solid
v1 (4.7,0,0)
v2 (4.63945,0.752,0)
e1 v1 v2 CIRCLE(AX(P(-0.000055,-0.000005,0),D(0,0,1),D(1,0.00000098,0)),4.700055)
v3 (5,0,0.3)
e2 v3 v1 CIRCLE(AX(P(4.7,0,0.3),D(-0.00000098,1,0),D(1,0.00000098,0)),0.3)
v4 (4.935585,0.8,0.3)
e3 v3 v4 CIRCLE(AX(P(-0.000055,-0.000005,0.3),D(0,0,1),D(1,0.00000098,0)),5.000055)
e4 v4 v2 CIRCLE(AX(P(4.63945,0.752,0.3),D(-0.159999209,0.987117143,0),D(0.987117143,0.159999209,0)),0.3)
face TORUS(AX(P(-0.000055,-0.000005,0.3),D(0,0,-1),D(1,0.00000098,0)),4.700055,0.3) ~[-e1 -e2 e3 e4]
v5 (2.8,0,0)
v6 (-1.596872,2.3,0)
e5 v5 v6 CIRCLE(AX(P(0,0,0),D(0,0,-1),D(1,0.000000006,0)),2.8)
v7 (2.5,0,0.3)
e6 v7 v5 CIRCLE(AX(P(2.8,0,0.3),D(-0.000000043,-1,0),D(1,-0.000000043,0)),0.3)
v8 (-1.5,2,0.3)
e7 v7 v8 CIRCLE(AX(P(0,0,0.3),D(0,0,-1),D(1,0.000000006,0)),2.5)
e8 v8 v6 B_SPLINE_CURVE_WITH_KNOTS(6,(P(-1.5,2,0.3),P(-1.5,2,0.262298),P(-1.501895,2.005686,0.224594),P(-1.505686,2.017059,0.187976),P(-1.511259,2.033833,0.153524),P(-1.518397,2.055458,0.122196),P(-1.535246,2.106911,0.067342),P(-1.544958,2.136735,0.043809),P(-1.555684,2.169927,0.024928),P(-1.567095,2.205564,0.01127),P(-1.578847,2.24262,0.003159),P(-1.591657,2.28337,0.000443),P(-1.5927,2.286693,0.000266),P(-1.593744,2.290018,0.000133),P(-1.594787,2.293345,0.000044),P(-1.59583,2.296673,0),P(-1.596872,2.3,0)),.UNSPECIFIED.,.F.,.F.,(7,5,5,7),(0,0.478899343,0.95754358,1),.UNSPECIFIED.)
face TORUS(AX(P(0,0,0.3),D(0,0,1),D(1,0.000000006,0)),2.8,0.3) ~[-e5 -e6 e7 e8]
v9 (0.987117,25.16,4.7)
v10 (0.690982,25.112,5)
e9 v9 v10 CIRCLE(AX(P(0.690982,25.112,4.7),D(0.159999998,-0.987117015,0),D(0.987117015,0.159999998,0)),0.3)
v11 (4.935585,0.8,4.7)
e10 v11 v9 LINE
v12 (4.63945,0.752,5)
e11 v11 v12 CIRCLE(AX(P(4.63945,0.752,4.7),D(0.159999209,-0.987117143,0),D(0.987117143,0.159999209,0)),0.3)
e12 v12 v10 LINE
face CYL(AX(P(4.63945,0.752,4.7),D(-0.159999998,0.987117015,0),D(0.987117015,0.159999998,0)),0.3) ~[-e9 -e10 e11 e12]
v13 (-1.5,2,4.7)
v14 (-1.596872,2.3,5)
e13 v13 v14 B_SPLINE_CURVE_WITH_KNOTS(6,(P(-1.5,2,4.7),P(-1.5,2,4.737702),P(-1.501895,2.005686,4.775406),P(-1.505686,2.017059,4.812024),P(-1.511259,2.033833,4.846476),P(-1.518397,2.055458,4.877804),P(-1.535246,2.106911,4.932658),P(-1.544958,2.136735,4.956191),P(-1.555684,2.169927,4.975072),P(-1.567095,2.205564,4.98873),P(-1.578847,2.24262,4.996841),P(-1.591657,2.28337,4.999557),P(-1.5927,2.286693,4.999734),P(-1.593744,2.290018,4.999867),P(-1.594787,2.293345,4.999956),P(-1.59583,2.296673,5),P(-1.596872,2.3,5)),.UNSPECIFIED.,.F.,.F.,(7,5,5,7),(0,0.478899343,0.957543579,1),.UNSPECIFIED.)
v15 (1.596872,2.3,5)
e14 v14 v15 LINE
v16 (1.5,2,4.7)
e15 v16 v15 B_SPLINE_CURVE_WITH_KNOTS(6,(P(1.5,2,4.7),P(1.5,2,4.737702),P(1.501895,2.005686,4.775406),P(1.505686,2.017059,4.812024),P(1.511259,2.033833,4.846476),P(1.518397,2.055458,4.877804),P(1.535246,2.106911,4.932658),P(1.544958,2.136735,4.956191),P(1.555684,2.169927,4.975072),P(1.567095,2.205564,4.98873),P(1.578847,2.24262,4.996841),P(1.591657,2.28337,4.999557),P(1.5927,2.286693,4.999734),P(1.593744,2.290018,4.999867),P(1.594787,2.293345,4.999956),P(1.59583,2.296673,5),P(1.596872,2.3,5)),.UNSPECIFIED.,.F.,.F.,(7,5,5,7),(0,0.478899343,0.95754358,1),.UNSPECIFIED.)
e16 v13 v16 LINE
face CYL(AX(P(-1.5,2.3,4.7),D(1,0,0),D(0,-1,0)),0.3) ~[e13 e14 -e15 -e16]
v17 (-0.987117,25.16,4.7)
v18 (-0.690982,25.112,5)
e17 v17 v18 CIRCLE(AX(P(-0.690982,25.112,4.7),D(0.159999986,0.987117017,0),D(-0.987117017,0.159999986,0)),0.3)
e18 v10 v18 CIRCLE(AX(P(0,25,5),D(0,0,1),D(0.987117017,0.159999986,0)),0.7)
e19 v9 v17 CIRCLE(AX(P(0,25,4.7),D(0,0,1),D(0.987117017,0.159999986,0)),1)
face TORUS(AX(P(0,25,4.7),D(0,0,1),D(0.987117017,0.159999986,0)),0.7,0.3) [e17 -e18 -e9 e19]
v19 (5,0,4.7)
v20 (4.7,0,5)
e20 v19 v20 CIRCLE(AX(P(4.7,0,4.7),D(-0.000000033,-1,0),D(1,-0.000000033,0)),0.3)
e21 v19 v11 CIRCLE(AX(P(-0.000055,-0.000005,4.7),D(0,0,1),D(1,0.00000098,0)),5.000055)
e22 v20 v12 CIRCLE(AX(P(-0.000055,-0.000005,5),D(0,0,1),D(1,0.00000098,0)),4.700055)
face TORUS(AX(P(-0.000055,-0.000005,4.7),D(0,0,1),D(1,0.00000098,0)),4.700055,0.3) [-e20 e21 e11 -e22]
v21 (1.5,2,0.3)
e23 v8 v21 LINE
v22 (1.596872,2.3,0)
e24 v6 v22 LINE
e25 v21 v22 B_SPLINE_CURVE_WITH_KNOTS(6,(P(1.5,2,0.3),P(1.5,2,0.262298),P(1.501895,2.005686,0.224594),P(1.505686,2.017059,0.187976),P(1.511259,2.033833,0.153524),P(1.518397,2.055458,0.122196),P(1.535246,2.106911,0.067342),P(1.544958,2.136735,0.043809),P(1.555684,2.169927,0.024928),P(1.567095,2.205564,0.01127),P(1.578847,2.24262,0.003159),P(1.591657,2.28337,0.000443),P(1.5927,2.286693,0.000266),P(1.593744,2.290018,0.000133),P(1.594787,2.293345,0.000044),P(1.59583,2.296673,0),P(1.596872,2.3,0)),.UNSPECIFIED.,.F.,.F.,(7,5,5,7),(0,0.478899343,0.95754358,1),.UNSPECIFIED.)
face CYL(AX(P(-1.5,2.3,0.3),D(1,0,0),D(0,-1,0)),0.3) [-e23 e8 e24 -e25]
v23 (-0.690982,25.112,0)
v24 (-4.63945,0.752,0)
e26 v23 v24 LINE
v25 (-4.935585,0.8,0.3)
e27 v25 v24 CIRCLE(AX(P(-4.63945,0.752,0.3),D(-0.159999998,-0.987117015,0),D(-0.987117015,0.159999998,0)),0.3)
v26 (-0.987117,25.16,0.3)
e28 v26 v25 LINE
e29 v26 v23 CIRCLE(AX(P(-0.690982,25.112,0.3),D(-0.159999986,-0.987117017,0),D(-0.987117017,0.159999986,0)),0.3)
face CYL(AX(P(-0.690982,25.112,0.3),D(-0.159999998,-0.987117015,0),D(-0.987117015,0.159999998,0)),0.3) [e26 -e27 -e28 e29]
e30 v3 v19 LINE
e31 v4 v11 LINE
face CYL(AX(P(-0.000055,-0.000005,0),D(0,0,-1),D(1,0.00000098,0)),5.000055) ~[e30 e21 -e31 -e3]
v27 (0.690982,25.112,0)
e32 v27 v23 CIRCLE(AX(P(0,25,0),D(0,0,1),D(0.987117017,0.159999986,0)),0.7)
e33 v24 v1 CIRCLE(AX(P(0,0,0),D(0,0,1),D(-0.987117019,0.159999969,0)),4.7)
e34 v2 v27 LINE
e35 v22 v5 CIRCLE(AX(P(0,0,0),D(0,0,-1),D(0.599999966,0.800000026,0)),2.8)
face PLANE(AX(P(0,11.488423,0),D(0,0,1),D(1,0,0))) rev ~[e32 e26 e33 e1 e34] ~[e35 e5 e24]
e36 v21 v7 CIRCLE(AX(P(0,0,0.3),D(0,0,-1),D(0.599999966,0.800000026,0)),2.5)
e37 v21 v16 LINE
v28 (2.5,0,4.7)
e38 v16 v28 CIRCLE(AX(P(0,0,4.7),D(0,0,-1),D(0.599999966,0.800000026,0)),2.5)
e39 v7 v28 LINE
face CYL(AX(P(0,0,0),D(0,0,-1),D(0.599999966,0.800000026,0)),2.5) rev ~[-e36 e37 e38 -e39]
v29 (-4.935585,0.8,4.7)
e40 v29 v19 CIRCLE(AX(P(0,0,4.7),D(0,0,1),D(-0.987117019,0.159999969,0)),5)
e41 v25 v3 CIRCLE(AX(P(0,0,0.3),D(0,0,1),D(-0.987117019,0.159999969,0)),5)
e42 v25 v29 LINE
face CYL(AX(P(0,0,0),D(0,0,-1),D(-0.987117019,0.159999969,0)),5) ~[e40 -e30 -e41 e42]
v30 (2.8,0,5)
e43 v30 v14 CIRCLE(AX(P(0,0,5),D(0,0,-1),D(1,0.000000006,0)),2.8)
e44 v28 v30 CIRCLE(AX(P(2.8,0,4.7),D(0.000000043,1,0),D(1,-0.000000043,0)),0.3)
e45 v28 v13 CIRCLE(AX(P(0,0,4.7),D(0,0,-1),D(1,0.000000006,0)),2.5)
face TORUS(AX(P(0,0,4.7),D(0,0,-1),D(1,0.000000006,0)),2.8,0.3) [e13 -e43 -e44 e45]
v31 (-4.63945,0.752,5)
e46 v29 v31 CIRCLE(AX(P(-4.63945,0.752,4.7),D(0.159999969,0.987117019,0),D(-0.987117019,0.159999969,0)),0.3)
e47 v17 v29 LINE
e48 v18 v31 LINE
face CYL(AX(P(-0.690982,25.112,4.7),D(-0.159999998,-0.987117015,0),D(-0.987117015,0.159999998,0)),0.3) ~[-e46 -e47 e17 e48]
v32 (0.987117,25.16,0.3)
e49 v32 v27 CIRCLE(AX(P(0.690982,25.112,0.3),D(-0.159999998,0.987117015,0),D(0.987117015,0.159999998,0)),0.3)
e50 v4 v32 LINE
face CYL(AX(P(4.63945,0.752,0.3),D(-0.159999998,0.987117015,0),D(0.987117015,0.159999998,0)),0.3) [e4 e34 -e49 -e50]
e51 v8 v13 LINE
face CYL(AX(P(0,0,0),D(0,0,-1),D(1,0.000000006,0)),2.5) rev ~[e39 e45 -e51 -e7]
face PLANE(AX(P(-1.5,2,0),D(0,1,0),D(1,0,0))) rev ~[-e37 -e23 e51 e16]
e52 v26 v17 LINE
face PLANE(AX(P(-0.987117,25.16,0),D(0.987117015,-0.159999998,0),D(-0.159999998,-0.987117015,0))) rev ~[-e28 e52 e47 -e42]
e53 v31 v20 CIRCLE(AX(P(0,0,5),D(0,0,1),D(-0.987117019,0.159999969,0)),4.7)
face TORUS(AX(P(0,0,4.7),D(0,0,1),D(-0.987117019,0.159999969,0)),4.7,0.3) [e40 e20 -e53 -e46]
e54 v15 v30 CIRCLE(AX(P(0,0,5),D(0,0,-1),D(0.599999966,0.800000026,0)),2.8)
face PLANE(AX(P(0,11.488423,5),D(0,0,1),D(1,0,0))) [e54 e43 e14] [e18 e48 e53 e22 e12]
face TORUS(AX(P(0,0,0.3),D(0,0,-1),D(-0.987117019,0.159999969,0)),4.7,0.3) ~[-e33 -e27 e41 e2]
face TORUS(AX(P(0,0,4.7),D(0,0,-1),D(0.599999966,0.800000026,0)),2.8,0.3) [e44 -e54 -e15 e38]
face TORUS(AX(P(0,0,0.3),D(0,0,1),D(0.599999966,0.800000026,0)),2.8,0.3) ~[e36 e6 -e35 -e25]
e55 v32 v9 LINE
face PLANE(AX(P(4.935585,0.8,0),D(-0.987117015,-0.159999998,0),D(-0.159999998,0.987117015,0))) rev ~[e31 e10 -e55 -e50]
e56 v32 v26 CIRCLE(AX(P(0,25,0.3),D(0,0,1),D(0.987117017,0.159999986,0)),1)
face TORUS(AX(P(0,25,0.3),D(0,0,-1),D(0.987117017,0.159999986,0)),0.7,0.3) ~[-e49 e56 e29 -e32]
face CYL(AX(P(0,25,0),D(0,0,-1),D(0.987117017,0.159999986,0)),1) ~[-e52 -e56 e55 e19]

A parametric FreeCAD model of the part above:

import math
import FreeCAD as App
import Part
import Sketcher

V = App.Vector


def edges_at(feature, points):
    """Names of the edges that pass closest to the given points."""
    edges = feature.Shape.Edges
    near = lambda p: min(range(len(edges)), key=lambda i: edges[i].distToShape(Part.Vertex(*p))[0])
    return sorted({f"Edge{near(p) + 1}" for p in points})

doc = App.newDocument("Part")
params = doc.addObject("Spreadsheet::Sheet", "Params")
for row, (alias, value) in enumerate([
    ("sketch1_radius", "1 mm"),
    ("sketch1_radius2", "5 mm"),
    ("sketch1_radius3", "2.5 mm"),
    ("sketch1_width", "3 mm"),
    ("pad1_length", "5 mm"),
    ("fillet_radius", "0.3 mm"),
], start=1):
    params.set(f"A{row}", alias)
    params.set(f"B{row}", "=" + value)
    params.setAlias(f"B{row}", alias)

body = doc.addObject("PartDesign::Body", "Body")

# Sketch on XY plane
sketch1 = body.newObject("Sketcher::SketchObject", "Sketch")
sketch1.AttachmentSupport = (doc.getObject("XY_Plane"), [""])
sketch1.MapMode = "FlatFace"
sketch1.addGeometry(Part.LineSegment(V(4.935585, 0.8, 0), V(0.987117, 25.16, 0)), False)
sketch1.addGeometry(Part.ArcOfCircle(Part.Circle(V(0, 25, 0), V(0, 0, 1), 1), math.radians(9.206895), math.radians(170.793105)), False)
sketch1.addGeometry(Part.LineSegment(V(-0.987117, 25.16, 0), V(-4.935585, 0.8, 0)), False)
sketch1.addGeometry(Part.ArcOfCircle(Part.Circle(V(0, 0, 0), V(0, 0, 1), 5), math.radians(170.793106), math.radians(359.999998)), False)
sketch1.addGeometry(Part.ArcOfCircle(Part.Circle(V(-0.000055, -0.000005, 0), V(0, 0, 1), 5.000055), math.radians(0.000056), math.radians(9.20685)), False)
sketch1.addGeometry(Part.ArcOfCircle(Part.Circle(V(0, 0, 0), V(0, 0, 1), 2.5), math.radians(126.869897), math.radians(360)), False)
sketch1.addGeometry(Part.LineSegment(V(-1.5, 2, 0), V(1.5, 2, 0)), False)
sketch1.addGeometry(Part.ArcOfCircle(Part.Circle(V(0, 0, 0), V(0, 0, 1), 2.5), math.radians(-0.000002), math.radians(53.130105)), False)
sketch1.addConstraint(Sketcher.Constraint("Coincident", 0, 2, 1, 1))
sketch1.addConstraint(Sketcher.Constraint("Coincident", 1, 2, 2, 1))
sketch1.addConstraint(Sketcher.Constraint("Coincident", 2, 2, 3, 1))
sketch1.addConstraint(Sketcher.Constraint("Coincident", 3, 2, 4, 1))
sketch1.addConstraint(Sketcher.Constraint("Coincident", 4, 2, 0, 1))
sketch1.addConstraint(Sketcher.Constraint("Coincident", 5, 1, 6, 1))
sketch1.addConstraint(Sketcher.Constraint("Coincident", 6, 2, 7, 2))
sketch1.addConstraint(Sketcher.Constraint("Coincident", 7, 1, 5, 2))
sketch1.addConstraint(Sketcher.Constraint("Horizontal", 6))
sketch1.addConstraint(Sketcher.Constraint("Coincident", 3, 3, -1, 1))
sketch1.addConstraint(Sketcher.Constraint("Coincident", 5, 3, -1, 1))
sketch1.addConstraint(Sketcher.Constraint("Coincident", 7, 3, -1, 1))
sketch1.addConstraint(Sketcher.Constraint("PointOnObject", 1, 3, -2))
sketch1.addConstraint(Sketcher.Constraint("PointOnObject", 3, 2, -1))
sketch1.addConstraint(Sketcher.Constraint("PointOnObject", 7, 1, -1))
sketch1.addConstraint(Sketcher.Constraint("Radius", 1, 1.0))
sketch1.addConstraint(Sketcher.Constraint("Radius", 3, 5.0))
sketch1.addConstraint(Sketcher.Constraint("Radius", 5, 2.5))
sketch1.addConstraint(Sketcher.Constraint("DistanceX", 6, 1, 6, 2, 3.0))
sketch1.addConstraint(Sketcher.Constraint("DistanceY", -1, 1, 1, 3, 25.0))
sketch1.addConstraint(Sketcher.Constraint("DistanceY", -1, 1, 2, 2, 0.8))
sketch1.addConstraint(Sketcher.Constraint("DistanceY", -1, 1, 4, 2, 0.8))
sketch1.addConstraint(Sketcher.Constraint("DistanceY", -1, 1, 0, 2, 25.16))
sketch1.addConstraint(Sketcher.Constraint("DistanceY", -1, 1, 1, 2, 25.16))
sketch1.addConstraint(Sketcher.Constraint("Radius", 4, 5.000055))
sketch1.addConstraint(Sketcher.Constraint("DistanceX", 4, 3, 4, 2, 4.93564))
sketch1.setExpression("Constraints[15]", "Params.sketch1_radius")
sketch1.setExpression("Constraints[16]", "Params.sketch1_radius2")
sketch1.setExpression("Constraints[17]", "Params.sketch1_radius3")
sketch1.setExpression("Constraints[18]", "Params.sketch1_width")
pad1 = body.newObject("PartDesign::Pad", "Pad")
pad1.Profile = sketch1
pad1.setExpression("Length", "Params.pad1_length")
doc.recompute()

fillet = body.newObject("PartDesign::Fillet", "Fillet")
fillet.Base = (pad1, edges_at(pad1, [
    (-0.401, -4.984, 5),
    (4.984, 0.401, 5),
    (2.961, 12.98, 5),
    (0, 26, 5),
    (-2.961, 12.98, 5),
    (-1.118, -2.236, 5),
    (0, 2, 5),
    (4.984, 0.401, 0),
    (2.961, 12.98, 0),
    (0, 26, 0),
    (-2.961, 12.98, 0),
    (-0.401, -4.984, 0),
    (-1.118, -2.236, 0),
    (0, 2, 0),
]))
fillet.setExpression("Radius", "Params.fillet_radius")

doc.recompute()
